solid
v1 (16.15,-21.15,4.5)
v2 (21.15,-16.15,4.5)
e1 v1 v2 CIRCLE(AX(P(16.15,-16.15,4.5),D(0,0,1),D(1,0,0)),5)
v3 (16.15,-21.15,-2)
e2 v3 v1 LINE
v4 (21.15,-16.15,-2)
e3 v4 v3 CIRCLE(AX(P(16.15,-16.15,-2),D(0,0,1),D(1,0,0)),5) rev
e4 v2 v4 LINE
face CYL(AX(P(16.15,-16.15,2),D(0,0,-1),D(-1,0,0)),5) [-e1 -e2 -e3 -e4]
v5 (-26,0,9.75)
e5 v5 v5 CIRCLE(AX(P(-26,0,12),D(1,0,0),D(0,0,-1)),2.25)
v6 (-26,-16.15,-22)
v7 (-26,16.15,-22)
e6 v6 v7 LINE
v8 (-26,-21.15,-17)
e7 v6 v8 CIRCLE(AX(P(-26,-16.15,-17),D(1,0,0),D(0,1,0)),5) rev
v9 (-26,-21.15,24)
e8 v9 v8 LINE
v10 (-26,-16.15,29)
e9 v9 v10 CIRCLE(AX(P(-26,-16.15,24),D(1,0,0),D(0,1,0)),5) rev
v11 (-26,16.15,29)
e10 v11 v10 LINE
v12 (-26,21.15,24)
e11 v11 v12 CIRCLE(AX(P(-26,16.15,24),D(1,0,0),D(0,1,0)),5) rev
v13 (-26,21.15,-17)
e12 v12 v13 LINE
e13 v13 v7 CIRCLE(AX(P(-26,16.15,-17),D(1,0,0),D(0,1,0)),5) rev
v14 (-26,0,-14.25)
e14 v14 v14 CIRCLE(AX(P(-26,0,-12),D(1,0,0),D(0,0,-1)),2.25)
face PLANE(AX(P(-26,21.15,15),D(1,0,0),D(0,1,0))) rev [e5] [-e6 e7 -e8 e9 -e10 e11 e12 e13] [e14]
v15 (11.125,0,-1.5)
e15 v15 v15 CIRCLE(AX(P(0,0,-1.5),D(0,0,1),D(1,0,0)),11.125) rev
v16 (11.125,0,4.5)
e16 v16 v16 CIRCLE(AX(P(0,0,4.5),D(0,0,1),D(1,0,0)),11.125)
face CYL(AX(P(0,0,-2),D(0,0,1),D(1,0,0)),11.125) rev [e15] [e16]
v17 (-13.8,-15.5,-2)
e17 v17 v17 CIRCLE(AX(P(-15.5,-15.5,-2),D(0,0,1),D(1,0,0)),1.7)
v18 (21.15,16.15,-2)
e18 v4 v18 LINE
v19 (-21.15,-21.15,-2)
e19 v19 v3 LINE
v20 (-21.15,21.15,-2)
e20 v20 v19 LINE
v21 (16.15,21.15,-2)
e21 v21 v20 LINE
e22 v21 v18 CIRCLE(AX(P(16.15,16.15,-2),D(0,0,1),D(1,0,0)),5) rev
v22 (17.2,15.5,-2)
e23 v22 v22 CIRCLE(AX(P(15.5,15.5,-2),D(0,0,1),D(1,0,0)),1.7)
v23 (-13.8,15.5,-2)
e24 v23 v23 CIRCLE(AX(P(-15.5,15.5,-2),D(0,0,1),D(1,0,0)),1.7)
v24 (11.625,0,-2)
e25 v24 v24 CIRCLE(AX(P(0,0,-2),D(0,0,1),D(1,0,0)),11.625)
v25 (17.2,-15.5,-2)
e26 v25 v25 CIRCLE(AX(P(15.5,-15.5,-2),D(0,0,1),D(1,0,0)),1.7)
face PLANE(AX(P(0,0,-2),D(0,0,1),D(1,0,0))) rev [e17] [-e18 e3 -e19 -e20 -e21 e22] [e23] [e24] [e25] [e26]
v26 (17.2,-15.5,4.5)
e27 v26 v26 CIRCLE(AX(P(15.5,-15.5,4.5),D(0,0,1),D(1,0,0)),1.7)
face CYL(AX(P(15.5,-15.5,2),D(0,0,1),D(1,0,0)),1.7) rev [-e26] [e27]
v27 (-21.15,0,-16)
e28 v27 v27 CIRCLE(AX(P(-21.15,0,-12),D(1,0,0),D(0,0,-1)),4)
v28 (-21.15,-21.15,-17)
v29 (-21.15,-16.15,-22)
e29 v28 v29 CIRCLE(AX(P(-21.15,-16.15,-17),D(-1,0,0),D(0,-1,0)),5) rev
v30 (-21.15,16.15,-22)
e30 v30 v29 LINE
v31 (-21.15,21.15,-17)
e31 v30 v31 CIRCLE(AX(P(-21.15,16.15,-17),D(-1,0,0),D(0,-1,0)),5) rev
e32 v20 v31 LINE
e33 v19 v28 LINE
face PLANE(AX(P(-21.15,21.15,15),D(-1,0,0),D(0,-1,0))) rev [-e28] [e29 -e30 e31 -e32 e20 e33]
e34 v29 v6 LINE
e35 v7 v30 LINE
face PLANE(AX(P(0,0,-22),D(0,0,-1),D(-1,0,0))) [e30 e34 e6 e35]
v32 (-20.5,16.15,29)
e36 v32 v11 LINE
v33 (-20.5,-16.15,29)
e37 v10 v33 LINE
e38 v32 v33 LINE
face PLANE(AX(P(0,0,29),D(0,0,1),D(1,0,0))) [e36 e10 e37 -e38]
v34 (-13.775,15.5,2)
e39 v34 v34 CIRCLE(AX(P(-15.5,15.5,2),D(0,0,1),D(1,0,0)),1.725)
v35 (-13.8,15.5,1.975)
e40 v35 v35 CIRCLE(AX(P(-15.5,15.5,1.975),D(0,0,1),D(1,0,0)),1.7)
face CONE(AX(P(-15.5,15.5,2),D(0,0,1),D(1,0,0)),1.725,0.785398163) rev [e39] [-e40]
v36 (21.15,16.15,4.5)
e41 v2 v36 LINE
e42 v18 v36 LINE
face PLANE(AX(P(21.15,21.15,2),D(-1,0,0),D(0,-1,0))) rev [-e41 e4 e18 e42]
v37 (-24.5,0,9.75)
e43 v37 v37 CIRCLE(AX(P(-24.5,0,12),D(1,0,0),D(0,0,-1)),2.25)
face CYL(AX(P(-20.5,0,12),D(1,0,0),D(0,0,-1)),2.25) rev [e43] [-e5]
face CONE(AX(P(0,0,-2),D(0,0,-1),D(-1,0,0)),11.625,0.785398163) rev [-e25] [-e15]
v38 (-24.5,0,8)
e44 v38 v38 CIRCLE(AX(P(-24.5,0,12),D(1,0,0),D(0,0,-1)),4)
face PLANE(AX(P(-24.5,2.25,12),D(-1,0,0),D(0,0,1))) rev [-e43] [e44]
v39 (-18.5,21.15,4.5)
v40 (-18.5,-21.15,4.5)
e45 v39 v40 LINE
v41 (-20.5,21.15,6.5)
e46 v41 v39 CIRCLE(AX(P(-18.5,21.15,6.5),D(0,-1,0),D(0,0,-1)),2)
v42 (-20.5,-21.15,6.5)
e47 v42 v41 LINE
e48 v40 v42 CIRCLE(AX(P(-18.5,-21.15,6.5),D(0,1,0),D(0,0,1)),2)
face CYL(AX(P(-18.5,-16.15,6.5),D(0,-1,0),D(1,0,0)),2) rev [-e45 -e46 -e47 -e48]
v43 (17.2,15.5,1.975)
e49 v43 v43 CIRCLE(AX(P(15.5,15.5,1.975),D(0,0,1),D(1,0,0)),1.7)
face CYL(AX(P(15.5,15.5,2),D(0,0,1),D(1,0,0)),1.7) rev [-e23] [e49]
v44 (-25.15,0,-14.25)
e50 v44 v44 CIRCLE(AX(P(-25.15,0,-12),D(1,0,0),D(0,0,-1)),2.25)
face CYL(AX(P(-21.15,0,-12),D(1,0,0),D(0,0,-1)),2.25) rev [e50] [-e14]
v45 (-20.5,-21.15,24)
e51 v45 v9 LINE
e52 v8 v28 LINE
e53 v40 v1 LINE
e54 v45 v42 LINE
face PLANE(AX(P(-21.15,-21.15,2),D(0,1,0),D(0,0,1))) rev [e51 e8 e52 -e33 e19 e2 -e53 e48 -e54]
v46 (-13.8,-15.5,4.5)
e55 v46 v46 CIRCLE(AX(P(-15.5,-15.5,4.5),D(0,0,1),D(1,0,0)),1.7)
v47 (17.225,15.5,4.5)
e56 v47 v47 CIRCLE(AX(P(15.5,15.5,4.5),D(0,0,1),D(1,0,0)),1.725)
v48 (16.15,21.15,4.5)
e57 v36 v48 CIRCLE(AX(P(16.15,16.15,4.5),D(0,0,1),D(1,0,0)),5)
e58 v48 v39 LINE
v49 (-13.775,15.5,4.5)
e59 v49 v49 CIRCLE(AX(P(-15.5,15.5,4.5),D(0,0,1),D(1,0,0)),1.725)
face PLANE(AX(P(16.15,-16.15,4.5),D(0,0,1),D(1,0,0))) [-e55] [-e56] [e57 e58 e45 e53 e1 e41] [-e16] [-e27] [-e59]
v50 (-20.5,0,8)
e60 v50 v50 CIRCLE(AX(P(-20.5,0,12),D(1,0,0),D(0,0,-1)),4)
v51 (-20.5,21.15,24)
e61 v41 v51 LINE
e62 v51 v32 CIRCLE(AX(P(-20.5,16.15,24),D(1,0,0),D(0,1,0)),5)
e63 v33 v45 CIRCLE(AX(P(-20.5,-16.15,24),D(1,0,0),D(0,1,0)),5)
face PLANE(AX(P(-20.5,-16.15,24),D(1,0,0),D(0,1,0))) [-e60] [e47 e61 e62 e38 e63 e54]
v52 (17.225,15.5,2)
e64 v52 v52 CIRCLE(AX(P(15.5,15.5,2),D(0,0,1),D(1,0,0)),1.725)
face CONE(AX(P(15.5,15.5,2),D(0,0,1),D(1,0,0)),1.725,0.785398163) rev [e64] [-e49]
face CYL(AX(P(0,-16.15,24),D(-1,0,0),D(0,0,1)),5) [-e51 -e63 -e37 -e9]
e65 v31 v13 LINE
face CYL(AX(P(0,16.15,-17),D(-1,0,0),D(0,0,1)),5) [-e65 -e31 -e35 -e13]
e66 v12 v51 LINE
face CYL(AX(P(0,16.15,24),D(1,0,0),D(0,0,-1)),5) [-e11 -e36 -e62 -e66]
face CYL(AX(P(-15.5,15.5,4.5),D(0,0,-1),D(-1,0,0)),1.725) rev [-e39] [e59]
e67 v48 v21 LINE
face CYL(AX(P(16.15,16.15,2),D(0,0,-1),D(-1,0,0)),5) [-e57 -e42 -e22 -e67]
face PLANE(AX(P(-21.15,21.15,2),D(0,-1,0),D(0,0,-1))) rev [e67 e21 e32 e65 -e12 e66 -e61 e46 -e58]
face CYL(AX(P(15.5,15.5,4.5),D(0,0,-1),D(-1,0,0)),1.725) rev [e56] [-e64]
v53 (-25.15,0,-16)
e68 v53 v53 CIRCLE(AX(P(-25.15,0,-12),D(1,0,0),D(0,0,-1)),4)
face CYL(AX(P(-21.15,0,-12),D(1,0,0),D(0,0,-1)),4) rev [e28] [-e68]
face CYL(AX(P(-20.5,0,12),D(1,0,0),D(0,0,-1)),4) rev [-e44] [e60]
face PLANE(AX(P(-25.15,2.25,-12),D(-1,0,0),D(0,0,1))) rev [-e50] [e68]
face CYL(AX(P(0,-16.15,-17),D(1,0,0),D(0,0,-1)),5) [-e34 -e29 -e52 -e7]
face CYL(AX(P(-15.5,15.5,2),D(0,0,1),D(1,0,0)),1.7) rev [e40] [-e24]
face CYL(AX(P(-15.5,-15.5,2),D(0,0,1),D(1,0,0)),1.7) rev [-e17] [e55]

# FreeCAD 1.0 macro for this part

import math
import FreeCAD as App
import Part
import Sketcher
from FreeCAD import Vector


def edges_at(feature, points):
    """Names of the edges that pass closest to the given points."""
    edges = feature.Shape.Edges
    near = lambda p: min(range(len(edges)), key=lambda i: edges[i].distToShape(Part.Vertex(*p))[0])
    return sorted({f"Edge{near(p) + 1}" for p in points})

doc = App.newDocument("Part")
params = doc.addObject("Spreadsheet::Sheet", "Params")
for row, (alias, value) in enumerate([
    ("sketch1_width", "42.3 mm"),
    ("pad1_length", "4 mm"),
    ("sketch2_diameter", "3.4 mm"),
    ("hole_diameter", "3.4 mm"),
    ("hole_csink_diameter", "3.45 mm"),
    ("sketch3_diameter", "22.25 mm"),
    ("sketch4_height", "42.3 mm"),
    ("sketch4_width", "4.85 mm"),
    ("pad2_length", "30 mm"),
    ("fillet_radius", "5 mm"),
    ("sketch5_height", "42.3 mm"),
    ("sketch5_width", "4.85 mm"),
    ("pad3_length", "7 mm"),
    ("sketch6_height", "42.3 mm"),
    ("sketch6_width", "4.85 mm"),
    ("pad4_length", "14 mm"),
    ("sketch7_diameter", "4.5 mm"),
    ("hole2_diameter", "4.5 mm"),
    ("hole2_cbore_diameter", "8 mm"),
    ("hole2_cbore_depth", "4 mm"),
    ("fillet2_radius", "5 mm"),
    ("sketch8_radius", "5 mm"),
    ("sketch8_diameter", "3.4 mm"),
    ("sketch8_diameter2", "22.25 mm"),
    ("sketch8_diameter3", "3.45 mm"),
    ("sketch8_width", "37.3 mm"),
    ("pad5_length", "2.5 mm"),
    ("pad5_length2", "4 mm"),
    ("sketch9_radius", "5 mm"),
    ("sketch9_width", "42.3 mm"),
    ("sketch9_height", "19.5 mm"),
    ("pad6_length", "0.65 mm"),
    ("sketch10_diameter", "4.5 mm"),
    ("hole3_diameter", "4.5 mm"),
    ("hole3_cbore_diameter", "8 mm"),
    ("hole3_cbore_depth", "4 mm"),
    ("fillet3_radius", "2 mm"),
    ("chamfer_size", "0.5 mm"),
], start=1):
    params.set(f"A{row}", alias)
    params.set(f"B{row}", "=" + value)
    params.setAlias(f"B{row}", alias)

body = doc.addObject("PartDesign::Body", "Body")

sketch1 = doc.addObject("Sketcher::SketchObject", "Sketch")
body.addObject(sketch1)
sketch1.AttachmentSupport = (doc.XY_Plane, [""])
sketch1.MapMode = "FlatFace"
sketch1.addGeometry([
    Part.LineSegment(Vector(-21.15, 21.15, 0), Vector(-21.15, -21.15, 0)),
    Part.LineSegment(Vector(-21.15, -21.15, 0), Vector(21.15, -21.15, 0)),
    Part.LineSegment(Vector(21.15, -21.15, 0), Vector(21.15, 21.15, 0)),
    Part.LineSegment(Vector(21.15, 21.15, 0), Vector(-21.15, 21.15, 0)),
], False)
sketch1.addConstraint([
    Sketcher.Constraint("Coincident", 0, 2, 1, 1),
    Sketcher.Constraint("Coincident", 1, 2, 2, 1),
    Sketcher.Constraint("Coincident", 2, 2, 3, 1),
    Sketcher.Constraint("Coincident", 3, 2, 0, 1),
    Sketcher.Constraint("Vertical", 0),
    Sketcher.Constraint("Horizontal", 1),
    Sketcher.Constraint("Vertical", 2),
    Sketcher.Constraint("Horizontal", 3),
    Sketcher.Constraint("Symmetric", 0, 2, 2, 2, -1, 1),
    Sketcher.Constraint("Equal", 3, 0),
    Sketcher.Constraint("DistanceX", 1, 1, 1, 2, 42.3),
])
sketch1.setExpression("Constraints[10]", "Params.sketch1_width")
pad1 = doc.addObject("PartDesign::Pad", "Pad")
body.addObject(pad1)
pad1.Profile = sketch1
pad1.setExpression("Length", "Params.pad1_length")
pad1.Midplane = True

sketch2 = doc.addObject("Sketcher::SketchObject", "Sketch001")
body.addObject(sketch2)
sketch2.AttachmentSupport = (doc.XY_Plane, [""])
sketch2.MapMode = "FlatFace"
sketch2.AttachmentOffset = App.Placement(Vector(0, 0, 2), App.Rotation())
sketch2.addGeometry([
    Part.Circle(Vector(-15.5, 15.5, 0), Vector(0, 0, 1), 1.7),
    Part.Circle(Vector(15.5, 15.5, 0), Vector(0, 0, 1), 1.7),
    Part.Circle(Vector(15.5, -15.5, 0), Vector(0, 0, 1), 1.7),
    Part.Circle(Vector(-15.5, -15.5, 0), Vector(0, 0, 1), 1.7),
], False)
sketch2.addConstraint([
    Sketcher.Constraint("Equal", 0, 1),
    Sketcher.Constraint("Equal", 1, 2),
    Sketcher.Constraint("Equal", 2, 3),
    Sketcher.Constraint("Symmetric", 0, 3, 2, 3, -1, 1),
    Sketcher.Constraint("Symmetric", 1, 3, 3, 3, -1, 1),
    Sketcher.Constraint("Symmetric", 0, 3, 1, 3, -2),
    Sketcher.Constraint("Diameter", 0, 3.4),
    Sketcher.Constraint("DistanceX", 0, 3, 1, 3, 31.0),
    Sketcher.Constraint("DistanceY", 2, 3, 1, 3, 31.0),
])
sketch2.setExpression("Constraints[6]", "Params.sketch2_diameter")
doc.recompute()
hole = doc.addObject("PartDesign::Hole", "Hole")
body.addObject(hole)
hole.Profile = sketch2
hole.ThreadType = "None"
hole.setExpression("Diameter", "Params.hole_diameter")
hole.DepthType = "ThroughAll"
hole.HoleCutType = "Countersink"
hole.setExpression("HoleCutDiameter", "Params.hole_csink_diameter")
hole.HoleCutCountersinkAngle = 90

sketch3 = doc.addObject("Sketcher::SketchObject", "Sketch002")
body.addObject(sketch3)
sketch3.AttachmentSupport = (doc.XY_Plane, [""])
sketch3.MapMode = "FlatFace"
sketch3.AttachmentOffset = App.Placement(Vector(0, 0, 2), App.Rotation())
sketch3.addGeometry(Part.Circle(Vector(0, 0, 0), Vector(0, 0, 1), 11.125), False)
sketch3.addConstraint([
    Sketcher.Constraint("Coincident", 0, 3, -1, 1),
    Sketcher.Constraint("Diameter", 0, 22.25),
])
sketch3.setExpression("Constraints[1]", "Params.sketch3_diameter")
pocket1 = doc.addObject("PartDesign::Pocket", "Pocket")
body.addObject(pocket1)
pocket1.Profile = sketch3
pocket1.Type = "ThroughAll"

sketch4 = doc.addObject("Sketcher::SketchObject", "Sketch003")
body.addObject(sketch4)
sketch4.AttachmentSupport = (doc.XY_Plane, [""])
sketch4.MapMode = "FlatFace"
sketch4.addGeometry([
    Part.LineSegment(Vector(-26, 21.15, 0), Vector(-26, -21.15, 0)),
    Part.LineSegment(Vector(-26, -21.15, 0), Vector(-21.15, -21.15, 0)),
    Part.LineSegment(Vector(-21.15, -21.15, 0), Vector(-21.15, 21.15, 0)),
    Part.LineSegment(Vector(-21.15, 21.15, 0), Vector(-26, 21.15, 0)),
], False)
sketch4.addConstraint([
    Sketcher.Constraint("Coincident", 0, 2, 1, 1),
    Sketcher.Constraint("Coincident", 1, 2, 2, 1),
    Sketcher.Constraint("Coincident", 2, 2, 3, 1),
    Sketcher.Constraint("Coincident", 3, 2, 0, 1),
    Sketcher.Constraint("Vertical", 0),
    Sketcher.Constraint("Horizontal", 1),
    Sketcher.Constraint("Vertical", 2),
    Sketcher.Constraint("Horizontal", 3),
    Sketcher.Constraint("DistanceY", 0, 2, 0, 1, 42.3),
    Sketcher.Constraint("DistanceX", 0, 2, -1, 1, 26.0),
    Sketcher.Constraint("DistanceX", 1, 1, 1, 2, 4.85),
    Sketcher.Constraint("DistanceY", 0, 2, -1, 1, 21.15),
])
sketch4.setExpression("Constraints[8]", "Params.sketch4_height")
sketch4.setExpression("Constraints[10]", "Params.sketch4_width")
pad2 = doc.addObject("PartDesign::Pad", "Pad001")
body.addObject(pad2)
pad2.Profile = sketch4
pad2.setExpression("Length", "Params.pad2_length")
pad2.Midplane = True
doc.recompute()

fillet = doc.addObject("PartDesign::Fillet", "Fillet")
body.addObject(fillet)
fillet.Base = (pad2, edges_at(pad2, [(21.15, -21.15, 0), (21.15, 21.15, 0)]))
fillet.setExpression("Radius", "Params.fillet_radius")

sketch5 = doc.addObject("Sketcher::SketchObject", "Sketch004")
body.addObject(sketch5)
sketch5.AttachmentSupport = (doc.XY_Plane, [""])
sketch5.MapMode = "FlatFace"
sketch5.AttachmentOffset = App.Placement(Vector(0, 0, -15), App.Rotation())
sketch5.addGeometry([
    Part.LineSegment(Vector(-21.15, 21.15, 0), Vector(-21.15, -21.15, 0)),
    Part.LineSegment(Vector(-21.15, -21.15, 0), Vector(-26, -21.15, 0)),
    Part.LineSegment(Vector(-26, -21.15, 0), Vector(-26, 21.15, 0)),
    Part.LineSegment(Vector(-26, 21.15, 0), Vector(-21.15, 21.15, 0)),
], False)
sketch5.addConstraint([
    Sketcher.Constraint("Coincident", 0, 2, 1, 1),
    Sketcher.Constraint("Coincident", 1, 2, 2, 1),
    Sketcher.Constraint("Coincident", 2, 2, 3, 1),
    Sketcher.Constraint("Coincident", 3, 2, 0, 1),
    Sketcher.Constraint("Vertical", 0),
    Sketcher.Constraint("Horizontal", 1),
    Sketcher.Constraint("Vertical", 2),
    Sketcher.Constraint("Horizontal", 3),
    Sketcher.Constraint("DistanceY", 0, 2, 0, 1, 42.3),
    Sketcher.Constraint("DistanceX", 1, 2, -1, 1, 26.0),
    Sketcher.Constraint("DistanceX", 1, 2, 1, 1, 4.85),
    Sketcher.Constraint("DistanceY", 0, 2, -1, 1, 21.15),
])
sketch5.setExpression("Constraints[8]", "Params.sketch5_height")
sketch5.setExpression("Constraints[10]", "Params.sketch5_width")
pad3 = doc.addObject("PartDesign::Pad", "Pad002")
body.addObject(pad3)
pad3.Profile = sketch5
pad3.setExpression("Length", "Params.pad3_length")
pad3.Reversed = True

sketch6 = doc.addObject("Sketcher::SketchObject", "Sketch005")
body.addObject(sketch6)
sketch6.AttachmentSupport = (doc.XY_Plane, [""])
sketch6.MapMode = "FlatFace"
sketch6.AttachmentOffset = App.Placement(Vector(0, 0, 15), App.Rotation())
sketch6.addGeometry([
    Part.LineSegment(Vector(-26, 21.15, 0), Vector(-26, -21.15, 0)),
    Part.LineSegment(Vector(-26, -21.15, 0), Vector(-21.15, -21.15, 0)),
    Part.LineSegment(Vector(-21.15, -21.15, 0), Vector(-21.15, 21.15, 0)),
    Part.LineSegment(Vector(-21.15, 21.15, 0), Vector(-26, 21.15, 0)),
], False)
sketch6.addConstraint([
    Sketcher.Constraint("Coincident", 0, 2, 1, 1),
    Sketcher.Constraint("Coincident", 1, 2, 2, 1),
    Sketcher.Constraint("Coincident", 2, 2, 3, 1),
    Sketcher.Constraint("Coincident", 3, 2, 0, 1),
    Sketcher.Constraint("Vertical", 0),
    Sketcher.Constraint("Horizontal", 1),
    Sketcher.Constraint("Vertical", 2),
    Sketcher.Constraint("Horizontal", 3),
    Sketcher.Constraint("DistanceY", 0, 2, 0, 1, 42.3),
    Sketcher.Constraint("DistanceX", 0, 2, -1, 1, 26.0),
    Sketcher.Constraint("DistanceX", 1, 1, 1, 2, 4.85),
    Sketcher.Constraint("DistanceY", 0, 2, -1, 1, 21.15),
])
sketch6.setExpression("Constraints[8]", "Params.sketch6_height")
sketch6.setExpression("Constraints[10]", "Params.sketch6_width")
pad4 = doc.addObject("PartDesign::Pad", "Pad003")
body.addObject(pad4)
pad4.Profile = sketch6
pad4.setExpression("Length", "Params.pad4_length")

sketch7 = doc.addObject("Sketcher::SketchObject", "Sketch006")
body.addObject(sketch7)
sketch7.AttachmentSupport = (doc.YZ_Plane, [""])
sketch7.MapMode = "FlatFace"
sketch7.AttachmentOffset = App.Placement(Vector(0, 0, -21.15), App.Rotation())
sketch7.addGeometry(Part.Circle(Vector(0, -12, 0), Vector(0, 0, 1), 2.25), False)
sketch7.addConstraint([
    Sketcher.Constraint("PointOnObject", 0, 3, -2),
    Sketcher.Constraint("Diameter", 0, 4.5),
    Sketcher.Constraint("DistanceY", 0, 3, -1, 1, 12.0),
])
sketch7.setExpression("Constraints[1]", "Params.sketch7_diameter")
doc.recompute()
hole2 = doc.addObject("PartDesign::Hole", "Hole001")
body.addObject(hole2)
hole2.Profile = sketch7
hole2.ThreadType = "None"
hole2.setExpression("Diameter", "Params.hole2_diameter")
hole2.DepthType = "ThroughAll"
hole2.HoleCutType = "Counterbore"
hole2.setExpression("HoleCutDiameter", "Params.hole2_cbore_diameter")
hole2.setExpression("HoleCutDepth", "Params.hole2_cbore_depth")
doc.recompute()

fillet2 = doc.addObject("PartDesign::Fillet", "Fillet001")
body.addObject(fillet2)
fillet2.Base = (hole2, edges_at(hole2, [
    (-23.575, 21.15, -22),
    (-23.575, -21.15, -22),
    (-23.575, -21.15, 29),
    (-23.575, 21.15, 29),
]))
fillet2.setExpression("Radius", "Params.fillet2_radius")

sketch8 = doc.addObject("Sketcher::SketchObject", "Sketch007")
body.addObject(sketch8)
sketch8.AttachmentSupport = (doc.XY_Plane, [""])
sketch8.MapMode = "FlatFace"
sketch8.AttachmentOffset = App.Placement(Vector(0, 0, 2), App.Rotation())
sketch8.addGeometry([
    Part.LineSegment(Vector(-21.15, -21.15, 0), Vector(16.15, -21.15, 0)),
    Part.ArcOfCircle(Part.Circle(Vector(16.15, -16.15, 0), Vector(0, 0, 1), 5), math.radians(-90), math.radians(0)),
    Part.LineSegment(Vector(21.15, -16.15, 0), Vector(21.15, 16.15, 0)),
    Part.ArcOfCircle(Part.Circle(Vector(16.15, 16.15, 0), Vector(0, 0, 1), 5), math.radians(0), math.radians(90)),
    Part.LineSegment(Vector(16.15, 21.15, 0), Vector(-21.15, 21.15, 0)),
    Part.LineSegment(Vector(-21.15, 21.15, 0), Vector(-21.15, -21.15, 0)),
    Part.Circle(Vector(-15.5, -15.5, 0), Vector(0, 0, 1), 1.7),
    Part.Circle(Vector(15.5, -15.5, 0), Vector(0, 0, 1), 1.7),
    Part.Circle(Vector(0, 0, 0), Vector(0, 0, 1), 11.125),
    Part.Circle(Vector(-15.5, 15.5, 0), Vector(0, 0, 1), 1.725),
    Part.Circle(Vector(15.5, 15.5, 0), Vector(0, 0, 1), 1.725),
], False)
sketch8.addConstraint([
    Sketcher.Constraint("Tangent", 0, 2, 1, 1),
    Sketcher.Constraint("Tangent", 1, 2, 2, 1),
    Sketcher.Constraint("Tangent", 2, 2, 3, 1),
    Sketcher.Constraint("Tangent", 3, 2, 4, 1),
    Sketcher.Constraint("Coincident", 4, 2, 5, 1),
    Sketcher.Constraint("Coincident", 5, 2, 0, 1),
    Sketcher.Constraint("Horizontal", 0),
    Sketcher.Constraint("Vertical", 2),
    Sketcher.Constraint("Horizontal", 4),
    Sketcher.Constraint("Vertical", 5),
    Sketcher.Constraint("Coincident", 8, 3, -1, 1),
    Sketcher.Constraint("Equal", 1, 3),
    Sketcher.Constraint("Equal", 6, 7),
    Sketcher.Constraint("Equal", 9, 10),
    Sketcher.Constraint("Symmetric", 7, 3, 9, 3, -1, 1),
    Sketcher.Constraint("Symmetric", 6, 3, 10, 3, -1, 1),
    Sketcher.Constraint("Symmetric", 6, 3, 7, 3, -2),
    Sketcher.Constraint("Radius", 1, 5.0),
    Sketcher.Constraint("Diameter", 6, 3.4),
    Sketcher.Constraint("Diameter", 8, 22.25),
    Sketcher.Constraint("Diameter", 9, 3.45),
    Sketcher.Constraint("DistanceX", 0, 1, 0, 2, 37.3),
    Sketcher.Constraint("DistanceY", 2, 1, 2, 2, 32.3),
    Sketcher.Constraint("DistanceX", 6, 3, 7, 3, 31.0),
    Sketcher.Constraint("DistanceY", 6, 3, 9, 3, 31.0),
    Sketcher.Constraint("DistanceX", -1, 1, 1, 3, 16.15),
    Sketcher.Constraint("DistanceY", 1, 3, -1, 1, 16.15),
])
sketch8.setExpression("Constraints[17]", "Params.sketch8_radius")
sketch8.setExpression("Constraints[18]", "Params.sketch8_diameter")
sketch8.setExpression("Constraints[19]", "Params.sketch8_diameter2")
sketch8.setExpression("Constraints[20]", "Params.sketch8_diameter3")
sketch8.setExpression("Constraints[21]", "Params.sketch8_width")
pad5 = doc.addObject("PartDesign::Pad", "Pad004")
body.addObject(pad5)
pad5.Profile = sketch8
pad5.Type = "TwoLengths"
pad5.setExpression("Length", "Params.pad5_length")
pad5.setExpression("Length2", "Params.pad5_length2")

sketch9 = doc.addObject("Sketcher::SketchObject", "Sketch008")
body.addObject(sketch9)
sketch9.AttachmentSupport = (doc.YZ_Plane, [""])
sketch9.MapMode = "FlatFace"
sketch9.AttachmentOffset = App.Placement(Vector(0, 0, -21.15), App.Rotation())
sketch9.addGeometry([
    Part.LineSegment(Vector(-21.15, 24, 0), Vector(-21.15, 4.5, 0)),
    Part.LineSegment(Vector(-21.15, 4.5, 0), Vector(21.15, 4.5, 0)),
    Part.LineSegment(Vector(21.15, 4.5, 0), Vector(21.15, 24, 0)),
    Part.ArcOfCircle(Part.Circle(Vector(16.15, 24, 0), Vector(0, 0, 1), 5), math.radians(0), math.radians(90)),
    Part.LineSegment(Vector(16.15, 29, 0), Vector(-16.15, 29, 0)),
    Part.ArcOfCircle(Part.Circle(Vector(-16.15, 24, 0), Vector(0, 0, 1), 5), math.radians(90), math.radians(180)),
], False)
sketch9.addConstraint([
    Sketcher.Constraint("Coincident", 0, 2, 1, 1),
    Sketcher.Constraint("Coincident", 1, 2, 2, 1),
    Sketcher.Constraint("Tangent", 2, 2, 3, 1),
    Sketcher.Constraint("Tangent", 3, 2, 4, 1),
    Sketcher.Constraint("Tangent", 4, 2, 5, 1),
    Sketcher.Constraint("Tangent", 5, 2, 0, 1),
    Sketcher.Constraint("Vertical", 0),
    Sketcher.Constraint("Horizontal", 1),
    Sketcher.Constraint("Vertical", 2),
    Sketcher.Constraint("Horizontal", 4),
    Sketcher.Constraint("Equal", 3, 5),
    Sketcher.Constraint("Radius", 3, 5.0),
    Sketcher.Constraint("DistanceX", 1, 1, 1, 2, 42.3),
    Sketcher.Constraint("DistanceY", 0, 2, 0, 1, 19.5),
    Sketcher.Constraint("DistanceY", -1, 1, 3, 3, 24.0),
    Sketcher.Constraint("DistanceX", -1, 1, 3, 3, 16.15),
])
sketch9.setExpression("Constraints[11]", "Params.sketch9_radius")
sketch9.setExpression("Constraints[12]", "Params.sketch9_width")
sketch9.setExpression("Constraints[13]", "Params.sketch9_height")
pad6 = doc.addObject("PartDesign::Pad", "Pad005")
body.addObject(pad6)
pad6.Profile = sketch9
pad6.setExpression("Length", "Params.pad6_length")

sketch10 = doc.addObject("Sketcher::SketchObject", "Sketch009")
body.addObject(sketch10)
sketch10.AttachmentSupport = (doc.YZ_Plane, [""])
sketch10.MapMode = "FlatFace"
sketch10.AttachmentOffset = App.Placement(Vector(0, 0, -20.5), App.Rotation())
sketch10.addGeometry(Part.Circle(Vector(0, 12, 0), Vector(0, 0, 1), 2.25), False)
sketch10.addConstraint([
    Sketcher.Constraint("PointOnObject", 0, 3, -2),
    Sketcher.Constraint("Diameter", 0, 4.5),
    Sketcher.Constraint("DistanceY", -1, 1, 0, 3, 12.0),
])
sketch10.setExpression("Constraints[1]", "Params.sketch10_diameter")
doc.recompute()
hole3 = doc.addObject("PartDesign::Hole", "Hole002")
body.addObject(hole3)
hole3.Profile = sketch10
hole3.ThreadType = "None"
hole3.setExpression("Diameter", "Params.hole3_diameter")
hole3.DepthType = "ThroughAll"
hole3.HoleCutType = "Counterbore"
hole3.setExpression("HoleCutDiameter", "Params.hole3_cbore_diameter")
hole3.setExpression("HoleCutDepth", "Params.hole3_cbore_depth")
doc.recompute()

fillet3 = doc.addObject("PartDesign::Fillet", "Fillet002")
body.addObject(fillet3)
fillet3.Base = (hole3, edges_at(hole3, [(-20.5, 0, 4.5)]))
fillet3.setExpression("Radius", "Params.fillet3_radius")
doc.recompute()

chamfer = doc.addObject("PartDesign::Chamfer", "Chamfer")
body.addObject(chamfer)
chamfer.Base = (fillet3, edges_at(fillet3, [(-11.125, 0, -2)]))
chamfer.setExpression("Size", "Params.chamfer_size")

doc.recompute()
